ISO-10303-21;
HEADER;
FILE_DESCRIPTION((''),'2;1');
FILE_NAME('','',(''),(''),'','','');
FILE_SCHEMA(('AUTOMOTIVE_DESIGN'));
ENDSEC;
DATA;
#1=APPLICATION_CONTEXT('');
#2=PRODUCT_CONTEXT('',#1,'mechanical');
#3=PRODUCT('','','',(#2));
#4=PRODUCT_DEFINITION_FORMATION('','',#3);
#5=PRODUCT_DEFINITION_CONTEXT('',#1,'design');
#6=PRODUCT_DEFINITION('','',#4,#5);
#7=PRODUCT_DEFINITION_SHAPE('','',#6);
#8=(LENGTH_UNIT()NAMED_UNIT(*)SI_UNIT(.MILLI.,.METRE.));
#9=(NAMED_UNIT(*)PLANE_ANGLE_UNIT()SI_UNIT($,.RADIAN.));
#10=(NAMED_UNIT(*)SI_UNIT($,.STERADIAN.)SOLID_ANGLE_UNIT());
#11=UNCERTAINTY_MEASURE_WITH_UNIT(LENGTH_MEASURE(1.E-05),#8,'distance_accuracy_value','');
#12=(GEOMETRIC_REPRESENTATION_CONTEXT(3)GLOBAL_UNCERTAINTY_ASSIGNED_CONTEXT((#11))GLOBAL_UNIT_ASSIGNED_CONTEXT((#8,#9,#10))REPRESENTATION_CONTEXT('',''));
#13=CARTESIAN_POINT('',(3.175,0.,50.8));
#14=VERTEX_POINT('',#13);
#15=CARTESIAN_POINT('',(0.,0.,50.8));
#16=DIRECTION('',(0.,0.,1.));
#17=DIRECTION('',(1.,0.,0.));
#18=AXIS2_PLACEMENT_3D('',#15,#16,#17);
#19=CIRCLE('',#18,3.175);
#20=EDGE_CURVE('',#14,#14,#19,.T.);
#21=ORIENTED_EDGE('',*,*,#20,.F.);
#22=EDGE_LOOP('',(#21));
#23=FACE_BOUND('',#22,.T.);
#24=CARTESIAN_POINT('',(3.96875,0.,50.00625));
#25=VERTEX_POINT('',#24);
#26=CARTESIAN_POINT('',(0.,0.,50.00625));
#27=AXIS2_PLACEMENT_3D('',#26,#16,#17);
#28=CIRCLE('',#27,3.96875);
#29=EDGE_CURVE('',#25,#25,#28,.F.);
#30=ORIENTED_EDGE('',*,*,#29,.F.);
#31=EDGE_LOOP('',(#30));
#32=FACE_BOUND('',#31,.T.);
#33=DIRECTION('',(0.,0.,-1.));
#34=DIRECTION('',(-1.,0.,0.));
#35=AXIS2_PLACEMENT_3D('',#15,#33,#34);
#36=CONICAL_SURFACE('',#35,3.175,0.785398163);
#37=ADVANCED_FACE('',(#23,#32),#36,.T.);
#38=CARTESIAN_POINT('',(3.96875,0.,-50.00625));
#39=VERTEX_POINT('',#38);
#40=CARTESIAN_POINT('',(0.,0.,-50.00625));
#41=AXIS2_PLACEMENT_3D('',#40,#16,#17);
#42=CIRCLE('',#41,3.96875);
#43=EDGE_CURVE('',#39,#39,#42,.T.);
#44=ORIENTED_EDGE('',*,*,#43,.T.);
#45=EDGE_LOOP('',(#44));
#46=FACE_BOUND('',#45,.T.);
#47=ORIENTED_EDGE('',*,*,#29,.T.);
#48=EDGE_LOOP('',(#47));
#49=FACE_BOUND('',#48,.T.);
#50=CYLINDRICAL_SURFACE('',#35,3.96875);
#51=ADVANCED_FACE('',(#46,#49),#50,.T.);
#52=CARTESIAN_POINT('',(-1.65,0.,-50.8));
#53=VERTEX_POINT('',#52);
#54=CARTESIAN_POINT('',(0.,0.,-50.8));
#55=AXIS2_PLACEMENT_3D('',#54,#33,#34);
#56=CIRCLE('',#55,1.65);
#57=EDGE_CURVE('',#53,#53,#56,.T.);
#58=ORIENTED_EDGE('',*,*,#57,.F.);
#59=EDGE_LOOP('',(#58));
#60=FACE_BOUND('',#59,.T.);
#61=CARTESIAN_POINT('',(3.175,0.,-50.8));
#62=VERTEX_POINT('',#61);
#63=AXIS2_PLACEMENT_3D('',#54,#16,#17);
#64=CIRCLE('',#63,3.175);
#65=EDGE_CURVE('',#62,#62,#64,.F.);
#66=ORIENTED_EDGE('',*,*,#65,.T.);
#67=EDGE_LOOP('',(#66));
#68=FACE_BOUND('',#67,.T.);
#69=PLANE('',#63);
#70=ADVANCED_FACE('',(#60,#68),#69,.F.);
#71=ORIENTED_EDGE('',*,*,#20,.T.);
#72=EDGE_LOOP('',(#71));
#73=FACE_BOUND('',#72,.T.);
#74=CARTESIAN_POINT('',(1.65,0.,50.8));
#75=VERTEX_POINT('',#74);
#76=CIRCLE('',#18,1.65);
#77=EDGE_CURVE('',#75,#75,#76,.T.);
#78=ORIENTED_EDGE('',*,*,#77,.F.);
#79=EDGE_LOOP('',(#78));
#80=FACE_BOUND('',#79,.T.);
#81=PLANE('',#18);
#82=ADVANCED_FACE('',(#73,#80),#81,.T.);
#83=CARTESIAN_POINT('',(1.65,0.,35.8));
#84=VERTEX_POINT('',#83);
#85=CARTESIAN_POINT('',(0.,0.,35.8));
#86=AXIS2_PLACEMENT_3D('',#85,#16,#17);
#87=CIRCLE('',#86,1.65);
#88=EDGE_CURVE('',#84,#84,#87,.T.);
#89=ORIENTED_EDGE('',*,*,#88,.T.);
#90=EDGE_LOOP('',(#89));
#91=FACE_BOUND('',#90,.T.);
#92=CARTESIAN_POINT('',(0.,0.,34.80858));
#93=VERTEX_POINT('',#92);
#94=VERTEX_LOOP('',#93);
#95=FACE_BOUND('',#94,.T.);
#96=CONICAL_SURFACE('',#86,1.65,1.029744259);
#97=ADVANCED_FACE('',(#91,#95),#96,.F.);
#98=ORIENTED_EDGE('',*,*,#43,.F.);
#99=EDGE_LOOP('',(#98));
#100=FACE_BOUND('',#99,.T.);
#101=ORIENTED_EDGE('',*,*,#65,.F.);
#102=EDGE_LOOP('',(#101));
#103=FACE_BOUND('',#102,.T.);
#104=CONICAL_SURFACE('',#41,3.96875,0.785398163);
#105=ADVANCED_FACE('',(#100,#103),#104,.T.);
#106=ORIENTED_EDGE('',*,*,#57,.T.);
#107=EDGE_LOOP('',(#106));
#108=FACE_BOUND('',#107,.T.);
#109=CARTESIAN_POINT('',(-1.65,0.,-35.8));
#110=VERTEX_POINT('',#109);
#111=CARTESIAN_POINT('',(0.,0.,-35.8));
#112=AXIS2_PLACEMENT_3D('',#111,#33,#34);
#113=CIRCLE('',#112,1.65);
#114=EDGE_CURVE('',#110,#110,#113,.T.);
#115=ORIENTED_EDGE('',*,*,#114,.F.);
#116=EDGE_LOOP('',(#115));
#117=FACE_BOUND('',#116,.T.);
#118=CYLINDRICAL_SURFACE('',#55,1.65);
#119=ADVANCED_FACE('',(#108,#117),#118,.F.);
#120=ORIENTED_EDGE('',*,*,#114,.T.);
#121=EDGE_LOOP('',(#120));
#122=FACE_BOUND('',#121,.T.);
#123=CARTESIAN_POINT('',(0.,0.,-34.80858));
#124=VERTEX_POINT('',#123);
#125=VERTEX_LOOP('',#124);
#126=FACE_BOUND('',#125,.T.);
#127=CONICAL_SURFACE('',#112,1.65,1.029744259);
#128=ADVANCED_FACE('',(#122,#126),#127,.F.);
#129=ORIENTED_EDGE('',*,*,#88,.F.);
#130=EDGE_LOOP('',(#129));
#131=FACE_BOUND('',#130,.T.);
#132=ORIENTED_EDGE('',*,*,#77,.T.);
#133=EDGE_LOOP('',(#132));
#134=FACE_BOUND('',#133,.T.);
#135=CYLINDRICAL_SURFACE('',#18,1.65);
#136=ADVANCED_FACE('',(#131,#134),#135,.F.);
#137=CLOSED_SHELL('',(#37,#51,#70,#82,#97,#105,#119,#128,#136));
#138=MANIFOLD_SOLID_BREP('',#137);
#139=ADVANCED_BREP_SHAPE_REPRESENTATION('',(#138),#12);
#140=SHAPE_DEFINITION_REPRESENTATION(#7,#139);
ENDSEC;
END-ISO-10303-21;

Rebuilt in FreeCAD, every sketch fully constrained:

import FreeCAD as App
import Part
import Sketcher

V = App.Vector
Q = App.Units.Quantity


def edges_at(feature, points):
    """Names of the edges that pass closest to the given points."""
    edges = feature.Shape.Edges
    near = lambda p: min(range(len(edges)), key=lambda i: edges[i].distToShape(Part.Vertex(*p))[0])
    return sorted({f"Edge{near(p) + 1}" for p in points})

doc = App.newDocument("Part")
body = doc.addObject("PartDesign::Body", "Body")

sketch1 = body.newObject("Sketcher::SketchObject", "Sketch")
sketch1.AttachmentSupport = (doc.getObject("XY_Plane"), [""])
sketch1.MapMode = "FlatFace"
sketch1.addGeometry(Part.Circle(V(0, 0, 0), V(0, 0, 1), 4), False)
sketch1.addConstraint([
    Sketcher.Constraint("Coincident", 0, 3, -1, 1),
    Sketcher.Constraint("Diameter", 0, Q("0.3125 in")),
])
pad1 = body.newObject("PartDesign::Pad", "Pad")
pad1.Profile = sketch1
pad1.Length = Q("4 in")
pad1.Midplane = True
doc.recompute()

chamfer = body.newObject("PartDesign::Chamfer", "Chamfer")
chamfer.Base = (pad1, edges_at(pad1, [(-3.969, 0, -50.8), (-3.969, 0, 50.8)]))
chamfer.Size = Q("0.03125 in")

sketch2 = body.newObject("Sketcher::SketchObject", "Sketch001")
sketch2.AttachmentSupport = (doc.getObject("YZ_Plane"), [""])
sketch2.MapMode = "FlatFace"
sketch2.addGeometry([
    Part.LineSegment(V(0, -34.8, 0), V(0, -50.8, 0)),
    Part.LineSegment(V(0, -50.8, 0), V(1.6, -50.8, 0)),
    Part.LineSegment(V(1.6, -50.8, 0), V(1.6, -35.8, 0)),
    Part.LineSegment(V(1.6, -35.8, 0), V(0, -34.8, 0)),
], False)
sketch2.addConstraint([
    Sketcher.Constraint("Coincident", 0, 2, 1, 1),
    Sketcher.Constraint("Coincident", 1, 2, 2, 1),
    Sketcher.Constraint("Coincident", 2, 2, 3, 1),
    Sketcher.Constraint("Coincident", 3, 2, 0, 1),
    Sketcher.Constraint("Vertical", 0),
    Sketcher.Constraint("Horizontal", 1),
    Sketcher.Constraint("Vertical", 2),
    Sketcher.Constraint("PointOnObject", 0, 2, -2),
    Sketcher.Constraint("DistanceY", 0, 2, -1, 1, Q("2 in")),
    Sketcher.Constraint("Angle", 3, Q("149 deg")),
    Sketcher.Constraint("DistanceX", 1, 1, 1, 2, 1.65),
    Sketcher.Constraint("DistanceY", 2, 1, 2, 2, 15.0),
])
groove = body.newObject("PartDesign::Groove", "Groove")
groove.Profile = sketch2
groove.ReferenceAxis = (sketch2, ["V_Axis"])
groove.Angle = 360
doc.recompute()

mirrored = body.newObject("PartDesign::Mirrored", "Mirrored")
mirrored.Originals = [groove]
mirrored.MirrorPlane = (doc.getObject("XY_Plane"), [""])
body.Tip = mirrored

doc.recompute()
